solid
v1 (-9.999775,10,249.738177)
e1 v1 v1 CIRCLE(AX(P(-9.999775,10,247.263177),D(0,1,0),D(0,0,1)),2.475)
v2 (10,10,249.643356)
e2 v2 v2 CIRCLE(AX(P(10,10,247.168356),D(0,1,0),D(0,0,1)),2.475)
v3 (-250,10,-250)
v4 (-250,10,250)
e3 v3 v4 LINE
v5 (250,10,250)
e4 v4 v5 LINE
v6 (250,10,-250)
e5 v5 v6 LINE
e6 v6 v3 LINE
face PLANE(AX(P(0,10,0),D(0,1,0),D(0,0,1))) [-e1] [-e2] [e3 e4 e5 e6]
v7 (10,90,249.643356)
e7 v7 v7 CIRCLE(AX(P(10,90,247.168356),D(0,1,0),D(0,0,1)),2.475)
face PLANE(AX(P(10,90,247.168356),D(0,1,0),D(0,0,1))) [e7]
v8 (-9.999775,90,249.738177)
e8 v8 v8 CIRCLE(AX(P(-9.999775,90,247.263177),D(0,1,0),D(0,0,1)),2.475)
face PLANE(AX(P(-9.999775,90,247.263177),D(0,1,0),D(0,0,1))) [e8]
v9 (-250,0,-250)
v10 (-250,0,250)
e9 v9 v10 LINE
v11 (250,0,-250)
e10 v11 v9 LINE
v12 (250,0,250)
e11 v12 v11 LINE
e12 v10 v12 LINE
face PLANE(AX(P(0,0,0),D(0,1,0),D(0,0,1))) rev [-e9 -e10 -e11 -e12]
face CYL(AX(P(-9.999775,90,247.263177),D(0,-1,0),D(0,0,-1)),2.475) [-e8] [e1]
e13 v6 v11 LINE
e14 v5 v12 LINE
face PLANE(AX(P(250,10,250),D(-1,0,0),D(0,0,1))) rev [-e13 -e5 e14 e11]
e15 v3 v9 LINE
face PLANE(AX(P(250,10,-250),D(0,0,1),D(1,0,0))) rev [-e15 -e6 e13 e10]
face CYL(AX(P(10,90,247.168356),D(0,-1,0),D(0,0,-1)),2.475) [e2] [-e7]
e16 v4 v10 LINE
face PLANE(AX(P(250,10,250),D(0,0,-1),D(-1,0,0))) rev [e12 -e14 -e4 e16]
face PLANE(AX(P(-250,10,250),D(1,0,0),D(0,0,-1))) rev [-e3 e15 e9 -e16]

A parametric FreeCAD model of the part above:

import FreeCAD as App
import Part
import Sketcher

V = App.Vector


def add_polygon(sketch, points):
    """Adds a closed chain of lines whose ends are joined by coincident constraints."""
    first, n = sketch.GeometryCount, len(points)
    for a, b in zip(points, points[1:] + points[:1]):
        sketch.addGeometry(Part.LineSegment(App.Vector(*a, 0), App.Vector(*b, 0)), False)
    for i in range(n):
        sketch.addConstraint(Sketcher.Constraint("Coincident", first + i, 2, first + (i + 1) % n, 1))

doc = App.newDocument("Part")
body = doc.addObject("PartDesign::Body", "Body")

# Sketch on XZ plane
sketch1 = body.newObject("Sketcher::SketchObject", "Sketch")
sketch1.AttachmentSupport = (doc.getObject("XZ_Plane"), [""])
sketch1.MapMode = "FlatFace"
add_polygon(sketch1, [(-250, -250), (-250, 250), (250, 250), (250, -250)])  # lines 0-3
sketch1.addConstraint(Sketcher.Constraint("Vertical", 0))
sketch1.addConstraint(Sketcher.Constraint("Horizontal", 1))
sketch1.addConstraint(Sketcher.Constraint("Vertical", 2))
sketch1.addConstraint(Sketcher.Constraint("Horizontal", 3))
sketch1.addConstraint(Sketcher.Constraint("Symmetric", 0, 2, 2, 2, -1, 1))
sketch1.addConstraint(Sketcher.Constraint("Equal", 3, 0))
sketch1.addConstraint(Sketcher.Constraint("DistanceX", 1, 1, 1, 2, 500.0))
pad1 = body.newObject("PartDesign::Pad", "Pad")
pad1.Profile = sketch1
pad1.Length = 10
pad1.Reversed = True

# Sketch on XZ plane
sketch2 = body.newObject("Sketcher::SketchObject", "Sketch001")
sketch2.AttachmentSupport = (doc.getObject("XZ_Plane"), [""])
sketch2.MapMode = "FlatFace"
sketch2.AttachmentOffset = App.Placement(V(0, 0, -10), App.Rotation())
sketch2.addGeometry(Part.Circle(V(-10, 247.3, 0), V(0, 0, 1), 2.5), False)
sketch2.addGeometry(Part.Circle(V(10, 247.2, 0), V(0, 0, 1), 2.5), False)
sketch2.addConstraint(Sketcher.Constraint("Equal", 0, 1))
sketch2.addConstraint(Sketcher.Constraint("Diameter", 0, 4.95))
sketch2.addConstraint(Sketcher.Constraint("DistanceX", -1, 1, 1, 3, 10.0))
sketch2.addConstraint(Sketcher.Constraint("DistanceY", 1, 3, 0, 3, 0.094821))
sketch2.addConstraint(Sketcher.Constraint("DistanceX", 0, 3, -1, 1, 9.999775))
sketch2.addConstraint(Sketcher.Constraint("DistanceY", -1, 1, 0, 3, 247.263177))
pad2 = body.newObject("PartDesign::Pad", "Pad001")
pad2.Profile = sketch2
pad2.Length = 80
pad2.Reversed = True

doc.recompute()
